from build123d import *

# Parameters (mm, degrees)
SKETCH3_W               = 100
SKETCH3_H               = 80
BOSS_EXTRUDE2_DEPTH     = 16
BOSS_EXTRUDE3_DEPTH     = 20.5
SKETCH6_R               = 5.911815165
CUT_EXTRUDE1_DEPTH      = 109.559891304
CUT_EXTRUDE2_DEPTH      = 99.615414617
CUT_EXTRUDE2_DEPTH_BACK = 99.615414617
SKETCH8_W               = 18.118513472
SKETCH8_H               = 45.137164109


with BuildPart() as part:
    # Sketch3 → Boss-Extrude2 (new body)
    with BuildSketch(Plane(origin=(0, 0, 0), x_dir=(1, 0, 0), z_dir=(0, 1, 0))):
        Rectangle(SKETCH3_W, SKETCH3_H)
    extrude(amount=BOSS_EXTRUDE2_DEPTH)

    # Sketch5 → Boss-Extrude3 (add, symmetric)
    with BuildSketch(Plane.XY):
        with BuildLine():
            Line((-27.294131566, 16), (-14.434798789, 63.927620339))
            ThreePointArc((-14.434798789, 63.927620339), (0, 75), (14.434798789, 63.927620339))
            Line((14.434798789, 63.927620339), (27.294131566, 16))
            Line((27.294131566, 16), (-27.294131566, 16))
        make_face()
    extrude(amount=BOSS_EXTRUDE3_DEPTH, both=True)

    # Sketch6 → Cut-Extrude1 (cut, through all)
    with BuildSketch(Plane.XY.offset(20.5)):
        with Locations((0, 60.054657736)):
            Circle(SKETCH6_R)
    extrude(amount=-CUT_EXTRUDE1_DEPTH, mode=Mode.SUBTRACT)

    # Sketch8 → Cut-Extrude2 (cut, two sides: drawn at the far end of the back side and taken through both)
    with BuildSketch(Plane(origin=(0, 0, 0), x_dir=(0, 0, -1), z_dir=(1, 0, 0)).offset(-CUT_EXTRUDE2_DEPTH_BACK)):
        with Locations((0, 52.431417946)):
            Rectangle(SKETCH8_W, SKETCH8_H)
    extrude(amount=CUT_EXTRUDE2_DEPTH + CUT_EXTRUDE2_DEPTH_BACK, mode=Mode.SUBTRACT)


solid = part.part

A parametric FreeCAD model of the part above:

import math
import FreeCAD as App
import Part
import Sketcher
from FreeCAD import Vector


def add_polygon(sketch, points):
    """Adds a closed chain of lines whose ends are joined by coincident constraints."""
    first, n = sketch.GeometryCount, len(points)
    for a, b in zip(points, points[1:] + points[:1]):
        sketch.addGeometry(Part.LineSegment(App.Vector(*a, 0), App.Vector(*b, 0)), False)
    for i in range(n):
        sketch.addConstraint(Sketcher.Constraint("Coincident", first + i, 2, first + (i + 1) % n, 1))

doc = App.newDocument("Part")
body = doc.addObject("PartDesign::Body", "Body")

sketch1 = body.newObject("Sketcher::SketchObject", "Sketch")
sketch1.AttachmentSupport = (doc.getObject("XZ_Plane"), [""])
sketch1.MapMode = "FlatFace"
add_polygon(sketch1, [(-50, -40), (-50, 40), (50, 40), (50, -40)])
sketch1.addConstraint(Sketcher.Constraint("Vertical", 0))
sketch1.addConstraint(Sketcher.Constraint("Horizontal", 1))
sketch1.addConstraint(Sketcher.Constraint("Vertical", 2))
sketch1.addConstraint(Sketcher.Constraint("Horizontal", 3))
sketch1.addConstraint(Sketcher.Constraint("Symmetric", 0, 2, 2, 2, -1, 1))
sketch1.addConstraint(Sketcher.Constraint("DistanceX", 1, 1, 1, 2, 100.0))
sketch1.addConstraint(Sketcher.Constraint("DistanceY", 0, 1, 0, 2, 80.0))
pad1 = body.newObject("PartDesign::Pad", "Pad")
pad1.Profile = sketch1
pad1.Length = 16
pad1.Reversed = True

sketch2 = body.newObject("Sketcher::SketchObject", "Sketch001")
sketch2.AttachmentSupport = (doc.getObject("XY_Plane"), [""])
sketch2.MapMode = "FlatFace"
sketch2.addGeometry(Part.LineSegment(Vector(-14, 64, 0), Vector(-27, 16, 0)), False)
sketch2.addGeometry(Part.LineSegment(Vector(-27, 16, 0), Vector(27, 16, 0)), False)
sketch2.addGeometry(Part.LineSegment(Vector(27, 16, 0), Vector(14, 64, 0)), False)
sketch2.addGeometry(Part.ArcOfCircle(Part.Circle(Vector(0, 60, 0), Vector(0, 0, 1), 15), math.radians(15), math.radians(165)), False)
sketch2.addConstraint(Sketcher.Constraint("Coincident", 0, 2, 1, 1))
sketch2.addConstraint(Sketcher.Constraint("Coincident", 1, 2, 2, 1))
sketch2.addConstraint(Sketcher.Constraint("Tangent", 2, 2, 3, 1))
sketch2.addConstraint(Sketcher.Constraint("Tangent", 3, 2, 0, 1))
sketch2.addConstraint(Sketcher.Constraint("Horizontal", 1))
sketch2.addConstraint(Sketcher.Constraint("Symmetric", 2, 2, 3, 2, -2))
sketch2.addConstraint(Sketcher.Constraint("DistanceY", -1, 1, 0, 2, 16.0))
sketch2.addConstraint(Sketcher.Constraint("Radius", 3, 14.945342))
sketch2.addConstraint(Sketcher.Constraint("DistanceX", -1, 1, 2, 2, 14.434799))
sketch2.addConstraint(Sketcher.Constraint("Distance", 0, 49.622769))
pad2 = body.newObject("PartDesign::Pad", "Pad001")
pad2.Profile = sketch2
pad2.Length = 41
pad2.Midplane = True

sketch3 = body.newObject("Sketcher::SketchObject", "Sketch002")
sketch3.AttachmentSupport = (doc.getObject("XY_Plane"), [""])
sketch3.MapMode = "FlatFace"
sketch3.AttachmentOffset = App.Placement(Vector(0, 0, 20.5), App.Rotation())
sketch3.addGeometry(Part.Circle(Vector(0, 60, 0), Vector(0, 0, 1), 6), False)
sketch3.addConstraint(Sketcher.Constraint("PointOnObject", 0, 3, -2))
sketch3.addConstraint(Sketcher.Constraint("Diameter", 0, 11.82363))
sketch3.addConstraint(Sketcher.Constraint("DistanceY", -1, 1, 0, 3, 60.054658))
pocket1 = body.newObject("PartDesign::Pocket", "Pocket")
pocket1.Profile = sketch3
pocket1.Type = "ThroughAll"

sketch4 = body.newObject("Sketcher::SketchObject", "Sketch003")
sketch4.AttachmentSupport = (doc.getObject("YZ_Plane"), [""])
sketch4.MapMode = "FlatFace"
add_polygon(sketch4, [(75, 9), (30, 9), (30, -9), (75, -9)])
sketch4.addConstraint(Sketcher.Constraint("Horizontal", 0))
sketch4.addConstraint(Sketcher.Constraint("Vertical", 1))
sketch4.addConstraint(Sketcher.Constraint("Horizontal", 2))
sketch4.addConstraint(Sketcher.Constraint("Vertical", 3))
sketch4.addConstraint(Sketcher.Constraint("DistanceX", -1, 1, 2, 2, 75.0))
sketch4.addConstraint(Sketcher.Constraint("DistanceX", 0, 2, 0, 1, 45.137164))
sketch4.addConstraint(Sketcher.Constraint("DistanceY", 1, 2, 1, 1, 18.118513))
sketch4.addConstraint(Sketcher.Constraint("DistanceY", -1, 1, 0, 2, 9.059257))
pocket2 = body.newObject("PartDesign::Pocket", "Pocket001")
pocket2.Profile = sketch4
pocket2.Type = "ThroughAll"
pocket2.Midplane = True

doc.recompute()
